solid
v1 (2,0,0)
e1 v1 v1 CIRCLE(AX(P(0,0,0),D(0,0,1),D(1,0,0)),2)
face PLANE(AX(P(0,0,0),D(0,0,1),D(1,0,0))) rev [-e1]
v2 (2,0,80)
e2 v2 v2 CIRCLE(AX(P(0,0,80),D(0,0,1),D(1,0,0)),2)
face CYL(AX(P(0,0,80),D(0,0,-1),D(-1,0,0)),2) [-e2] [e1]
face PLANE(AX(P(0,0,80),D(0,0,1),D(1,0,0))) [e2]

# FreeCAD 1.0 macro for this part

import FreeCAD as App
import Part
import Sketcher
from FreeCAD import Vector

doc = App.newDocument("Part")
body = doc.addObject("PartDesign::Body", "Body")

# Sketch on XY plane
sketch1 = doc.addObject("Sketcher::SketchObject", "Sketch")
body.addObject(sketch1)
sketch1.AttachmentSupport = (doc.XY_Plane, [""])
sketch1.MapMode = "FlatFace"
sketch1.addGeometry(Part.Circle(Vector(0, 0, 0), Vector(0, 0, 1), 2), False)
sketch1.addConstraint([
    Sketcher.Constraint("Coincident", 0, 3, -1, 1),
    Sketcher.Constraint("Diameter", 0, 4.0),
])
pad1 = doc.addObject("PartDesign::Pad", "Pad")
body.addObject(pad1)
pad1.Profile = sketch1
pad1.Length = 80

doc.recompute()
